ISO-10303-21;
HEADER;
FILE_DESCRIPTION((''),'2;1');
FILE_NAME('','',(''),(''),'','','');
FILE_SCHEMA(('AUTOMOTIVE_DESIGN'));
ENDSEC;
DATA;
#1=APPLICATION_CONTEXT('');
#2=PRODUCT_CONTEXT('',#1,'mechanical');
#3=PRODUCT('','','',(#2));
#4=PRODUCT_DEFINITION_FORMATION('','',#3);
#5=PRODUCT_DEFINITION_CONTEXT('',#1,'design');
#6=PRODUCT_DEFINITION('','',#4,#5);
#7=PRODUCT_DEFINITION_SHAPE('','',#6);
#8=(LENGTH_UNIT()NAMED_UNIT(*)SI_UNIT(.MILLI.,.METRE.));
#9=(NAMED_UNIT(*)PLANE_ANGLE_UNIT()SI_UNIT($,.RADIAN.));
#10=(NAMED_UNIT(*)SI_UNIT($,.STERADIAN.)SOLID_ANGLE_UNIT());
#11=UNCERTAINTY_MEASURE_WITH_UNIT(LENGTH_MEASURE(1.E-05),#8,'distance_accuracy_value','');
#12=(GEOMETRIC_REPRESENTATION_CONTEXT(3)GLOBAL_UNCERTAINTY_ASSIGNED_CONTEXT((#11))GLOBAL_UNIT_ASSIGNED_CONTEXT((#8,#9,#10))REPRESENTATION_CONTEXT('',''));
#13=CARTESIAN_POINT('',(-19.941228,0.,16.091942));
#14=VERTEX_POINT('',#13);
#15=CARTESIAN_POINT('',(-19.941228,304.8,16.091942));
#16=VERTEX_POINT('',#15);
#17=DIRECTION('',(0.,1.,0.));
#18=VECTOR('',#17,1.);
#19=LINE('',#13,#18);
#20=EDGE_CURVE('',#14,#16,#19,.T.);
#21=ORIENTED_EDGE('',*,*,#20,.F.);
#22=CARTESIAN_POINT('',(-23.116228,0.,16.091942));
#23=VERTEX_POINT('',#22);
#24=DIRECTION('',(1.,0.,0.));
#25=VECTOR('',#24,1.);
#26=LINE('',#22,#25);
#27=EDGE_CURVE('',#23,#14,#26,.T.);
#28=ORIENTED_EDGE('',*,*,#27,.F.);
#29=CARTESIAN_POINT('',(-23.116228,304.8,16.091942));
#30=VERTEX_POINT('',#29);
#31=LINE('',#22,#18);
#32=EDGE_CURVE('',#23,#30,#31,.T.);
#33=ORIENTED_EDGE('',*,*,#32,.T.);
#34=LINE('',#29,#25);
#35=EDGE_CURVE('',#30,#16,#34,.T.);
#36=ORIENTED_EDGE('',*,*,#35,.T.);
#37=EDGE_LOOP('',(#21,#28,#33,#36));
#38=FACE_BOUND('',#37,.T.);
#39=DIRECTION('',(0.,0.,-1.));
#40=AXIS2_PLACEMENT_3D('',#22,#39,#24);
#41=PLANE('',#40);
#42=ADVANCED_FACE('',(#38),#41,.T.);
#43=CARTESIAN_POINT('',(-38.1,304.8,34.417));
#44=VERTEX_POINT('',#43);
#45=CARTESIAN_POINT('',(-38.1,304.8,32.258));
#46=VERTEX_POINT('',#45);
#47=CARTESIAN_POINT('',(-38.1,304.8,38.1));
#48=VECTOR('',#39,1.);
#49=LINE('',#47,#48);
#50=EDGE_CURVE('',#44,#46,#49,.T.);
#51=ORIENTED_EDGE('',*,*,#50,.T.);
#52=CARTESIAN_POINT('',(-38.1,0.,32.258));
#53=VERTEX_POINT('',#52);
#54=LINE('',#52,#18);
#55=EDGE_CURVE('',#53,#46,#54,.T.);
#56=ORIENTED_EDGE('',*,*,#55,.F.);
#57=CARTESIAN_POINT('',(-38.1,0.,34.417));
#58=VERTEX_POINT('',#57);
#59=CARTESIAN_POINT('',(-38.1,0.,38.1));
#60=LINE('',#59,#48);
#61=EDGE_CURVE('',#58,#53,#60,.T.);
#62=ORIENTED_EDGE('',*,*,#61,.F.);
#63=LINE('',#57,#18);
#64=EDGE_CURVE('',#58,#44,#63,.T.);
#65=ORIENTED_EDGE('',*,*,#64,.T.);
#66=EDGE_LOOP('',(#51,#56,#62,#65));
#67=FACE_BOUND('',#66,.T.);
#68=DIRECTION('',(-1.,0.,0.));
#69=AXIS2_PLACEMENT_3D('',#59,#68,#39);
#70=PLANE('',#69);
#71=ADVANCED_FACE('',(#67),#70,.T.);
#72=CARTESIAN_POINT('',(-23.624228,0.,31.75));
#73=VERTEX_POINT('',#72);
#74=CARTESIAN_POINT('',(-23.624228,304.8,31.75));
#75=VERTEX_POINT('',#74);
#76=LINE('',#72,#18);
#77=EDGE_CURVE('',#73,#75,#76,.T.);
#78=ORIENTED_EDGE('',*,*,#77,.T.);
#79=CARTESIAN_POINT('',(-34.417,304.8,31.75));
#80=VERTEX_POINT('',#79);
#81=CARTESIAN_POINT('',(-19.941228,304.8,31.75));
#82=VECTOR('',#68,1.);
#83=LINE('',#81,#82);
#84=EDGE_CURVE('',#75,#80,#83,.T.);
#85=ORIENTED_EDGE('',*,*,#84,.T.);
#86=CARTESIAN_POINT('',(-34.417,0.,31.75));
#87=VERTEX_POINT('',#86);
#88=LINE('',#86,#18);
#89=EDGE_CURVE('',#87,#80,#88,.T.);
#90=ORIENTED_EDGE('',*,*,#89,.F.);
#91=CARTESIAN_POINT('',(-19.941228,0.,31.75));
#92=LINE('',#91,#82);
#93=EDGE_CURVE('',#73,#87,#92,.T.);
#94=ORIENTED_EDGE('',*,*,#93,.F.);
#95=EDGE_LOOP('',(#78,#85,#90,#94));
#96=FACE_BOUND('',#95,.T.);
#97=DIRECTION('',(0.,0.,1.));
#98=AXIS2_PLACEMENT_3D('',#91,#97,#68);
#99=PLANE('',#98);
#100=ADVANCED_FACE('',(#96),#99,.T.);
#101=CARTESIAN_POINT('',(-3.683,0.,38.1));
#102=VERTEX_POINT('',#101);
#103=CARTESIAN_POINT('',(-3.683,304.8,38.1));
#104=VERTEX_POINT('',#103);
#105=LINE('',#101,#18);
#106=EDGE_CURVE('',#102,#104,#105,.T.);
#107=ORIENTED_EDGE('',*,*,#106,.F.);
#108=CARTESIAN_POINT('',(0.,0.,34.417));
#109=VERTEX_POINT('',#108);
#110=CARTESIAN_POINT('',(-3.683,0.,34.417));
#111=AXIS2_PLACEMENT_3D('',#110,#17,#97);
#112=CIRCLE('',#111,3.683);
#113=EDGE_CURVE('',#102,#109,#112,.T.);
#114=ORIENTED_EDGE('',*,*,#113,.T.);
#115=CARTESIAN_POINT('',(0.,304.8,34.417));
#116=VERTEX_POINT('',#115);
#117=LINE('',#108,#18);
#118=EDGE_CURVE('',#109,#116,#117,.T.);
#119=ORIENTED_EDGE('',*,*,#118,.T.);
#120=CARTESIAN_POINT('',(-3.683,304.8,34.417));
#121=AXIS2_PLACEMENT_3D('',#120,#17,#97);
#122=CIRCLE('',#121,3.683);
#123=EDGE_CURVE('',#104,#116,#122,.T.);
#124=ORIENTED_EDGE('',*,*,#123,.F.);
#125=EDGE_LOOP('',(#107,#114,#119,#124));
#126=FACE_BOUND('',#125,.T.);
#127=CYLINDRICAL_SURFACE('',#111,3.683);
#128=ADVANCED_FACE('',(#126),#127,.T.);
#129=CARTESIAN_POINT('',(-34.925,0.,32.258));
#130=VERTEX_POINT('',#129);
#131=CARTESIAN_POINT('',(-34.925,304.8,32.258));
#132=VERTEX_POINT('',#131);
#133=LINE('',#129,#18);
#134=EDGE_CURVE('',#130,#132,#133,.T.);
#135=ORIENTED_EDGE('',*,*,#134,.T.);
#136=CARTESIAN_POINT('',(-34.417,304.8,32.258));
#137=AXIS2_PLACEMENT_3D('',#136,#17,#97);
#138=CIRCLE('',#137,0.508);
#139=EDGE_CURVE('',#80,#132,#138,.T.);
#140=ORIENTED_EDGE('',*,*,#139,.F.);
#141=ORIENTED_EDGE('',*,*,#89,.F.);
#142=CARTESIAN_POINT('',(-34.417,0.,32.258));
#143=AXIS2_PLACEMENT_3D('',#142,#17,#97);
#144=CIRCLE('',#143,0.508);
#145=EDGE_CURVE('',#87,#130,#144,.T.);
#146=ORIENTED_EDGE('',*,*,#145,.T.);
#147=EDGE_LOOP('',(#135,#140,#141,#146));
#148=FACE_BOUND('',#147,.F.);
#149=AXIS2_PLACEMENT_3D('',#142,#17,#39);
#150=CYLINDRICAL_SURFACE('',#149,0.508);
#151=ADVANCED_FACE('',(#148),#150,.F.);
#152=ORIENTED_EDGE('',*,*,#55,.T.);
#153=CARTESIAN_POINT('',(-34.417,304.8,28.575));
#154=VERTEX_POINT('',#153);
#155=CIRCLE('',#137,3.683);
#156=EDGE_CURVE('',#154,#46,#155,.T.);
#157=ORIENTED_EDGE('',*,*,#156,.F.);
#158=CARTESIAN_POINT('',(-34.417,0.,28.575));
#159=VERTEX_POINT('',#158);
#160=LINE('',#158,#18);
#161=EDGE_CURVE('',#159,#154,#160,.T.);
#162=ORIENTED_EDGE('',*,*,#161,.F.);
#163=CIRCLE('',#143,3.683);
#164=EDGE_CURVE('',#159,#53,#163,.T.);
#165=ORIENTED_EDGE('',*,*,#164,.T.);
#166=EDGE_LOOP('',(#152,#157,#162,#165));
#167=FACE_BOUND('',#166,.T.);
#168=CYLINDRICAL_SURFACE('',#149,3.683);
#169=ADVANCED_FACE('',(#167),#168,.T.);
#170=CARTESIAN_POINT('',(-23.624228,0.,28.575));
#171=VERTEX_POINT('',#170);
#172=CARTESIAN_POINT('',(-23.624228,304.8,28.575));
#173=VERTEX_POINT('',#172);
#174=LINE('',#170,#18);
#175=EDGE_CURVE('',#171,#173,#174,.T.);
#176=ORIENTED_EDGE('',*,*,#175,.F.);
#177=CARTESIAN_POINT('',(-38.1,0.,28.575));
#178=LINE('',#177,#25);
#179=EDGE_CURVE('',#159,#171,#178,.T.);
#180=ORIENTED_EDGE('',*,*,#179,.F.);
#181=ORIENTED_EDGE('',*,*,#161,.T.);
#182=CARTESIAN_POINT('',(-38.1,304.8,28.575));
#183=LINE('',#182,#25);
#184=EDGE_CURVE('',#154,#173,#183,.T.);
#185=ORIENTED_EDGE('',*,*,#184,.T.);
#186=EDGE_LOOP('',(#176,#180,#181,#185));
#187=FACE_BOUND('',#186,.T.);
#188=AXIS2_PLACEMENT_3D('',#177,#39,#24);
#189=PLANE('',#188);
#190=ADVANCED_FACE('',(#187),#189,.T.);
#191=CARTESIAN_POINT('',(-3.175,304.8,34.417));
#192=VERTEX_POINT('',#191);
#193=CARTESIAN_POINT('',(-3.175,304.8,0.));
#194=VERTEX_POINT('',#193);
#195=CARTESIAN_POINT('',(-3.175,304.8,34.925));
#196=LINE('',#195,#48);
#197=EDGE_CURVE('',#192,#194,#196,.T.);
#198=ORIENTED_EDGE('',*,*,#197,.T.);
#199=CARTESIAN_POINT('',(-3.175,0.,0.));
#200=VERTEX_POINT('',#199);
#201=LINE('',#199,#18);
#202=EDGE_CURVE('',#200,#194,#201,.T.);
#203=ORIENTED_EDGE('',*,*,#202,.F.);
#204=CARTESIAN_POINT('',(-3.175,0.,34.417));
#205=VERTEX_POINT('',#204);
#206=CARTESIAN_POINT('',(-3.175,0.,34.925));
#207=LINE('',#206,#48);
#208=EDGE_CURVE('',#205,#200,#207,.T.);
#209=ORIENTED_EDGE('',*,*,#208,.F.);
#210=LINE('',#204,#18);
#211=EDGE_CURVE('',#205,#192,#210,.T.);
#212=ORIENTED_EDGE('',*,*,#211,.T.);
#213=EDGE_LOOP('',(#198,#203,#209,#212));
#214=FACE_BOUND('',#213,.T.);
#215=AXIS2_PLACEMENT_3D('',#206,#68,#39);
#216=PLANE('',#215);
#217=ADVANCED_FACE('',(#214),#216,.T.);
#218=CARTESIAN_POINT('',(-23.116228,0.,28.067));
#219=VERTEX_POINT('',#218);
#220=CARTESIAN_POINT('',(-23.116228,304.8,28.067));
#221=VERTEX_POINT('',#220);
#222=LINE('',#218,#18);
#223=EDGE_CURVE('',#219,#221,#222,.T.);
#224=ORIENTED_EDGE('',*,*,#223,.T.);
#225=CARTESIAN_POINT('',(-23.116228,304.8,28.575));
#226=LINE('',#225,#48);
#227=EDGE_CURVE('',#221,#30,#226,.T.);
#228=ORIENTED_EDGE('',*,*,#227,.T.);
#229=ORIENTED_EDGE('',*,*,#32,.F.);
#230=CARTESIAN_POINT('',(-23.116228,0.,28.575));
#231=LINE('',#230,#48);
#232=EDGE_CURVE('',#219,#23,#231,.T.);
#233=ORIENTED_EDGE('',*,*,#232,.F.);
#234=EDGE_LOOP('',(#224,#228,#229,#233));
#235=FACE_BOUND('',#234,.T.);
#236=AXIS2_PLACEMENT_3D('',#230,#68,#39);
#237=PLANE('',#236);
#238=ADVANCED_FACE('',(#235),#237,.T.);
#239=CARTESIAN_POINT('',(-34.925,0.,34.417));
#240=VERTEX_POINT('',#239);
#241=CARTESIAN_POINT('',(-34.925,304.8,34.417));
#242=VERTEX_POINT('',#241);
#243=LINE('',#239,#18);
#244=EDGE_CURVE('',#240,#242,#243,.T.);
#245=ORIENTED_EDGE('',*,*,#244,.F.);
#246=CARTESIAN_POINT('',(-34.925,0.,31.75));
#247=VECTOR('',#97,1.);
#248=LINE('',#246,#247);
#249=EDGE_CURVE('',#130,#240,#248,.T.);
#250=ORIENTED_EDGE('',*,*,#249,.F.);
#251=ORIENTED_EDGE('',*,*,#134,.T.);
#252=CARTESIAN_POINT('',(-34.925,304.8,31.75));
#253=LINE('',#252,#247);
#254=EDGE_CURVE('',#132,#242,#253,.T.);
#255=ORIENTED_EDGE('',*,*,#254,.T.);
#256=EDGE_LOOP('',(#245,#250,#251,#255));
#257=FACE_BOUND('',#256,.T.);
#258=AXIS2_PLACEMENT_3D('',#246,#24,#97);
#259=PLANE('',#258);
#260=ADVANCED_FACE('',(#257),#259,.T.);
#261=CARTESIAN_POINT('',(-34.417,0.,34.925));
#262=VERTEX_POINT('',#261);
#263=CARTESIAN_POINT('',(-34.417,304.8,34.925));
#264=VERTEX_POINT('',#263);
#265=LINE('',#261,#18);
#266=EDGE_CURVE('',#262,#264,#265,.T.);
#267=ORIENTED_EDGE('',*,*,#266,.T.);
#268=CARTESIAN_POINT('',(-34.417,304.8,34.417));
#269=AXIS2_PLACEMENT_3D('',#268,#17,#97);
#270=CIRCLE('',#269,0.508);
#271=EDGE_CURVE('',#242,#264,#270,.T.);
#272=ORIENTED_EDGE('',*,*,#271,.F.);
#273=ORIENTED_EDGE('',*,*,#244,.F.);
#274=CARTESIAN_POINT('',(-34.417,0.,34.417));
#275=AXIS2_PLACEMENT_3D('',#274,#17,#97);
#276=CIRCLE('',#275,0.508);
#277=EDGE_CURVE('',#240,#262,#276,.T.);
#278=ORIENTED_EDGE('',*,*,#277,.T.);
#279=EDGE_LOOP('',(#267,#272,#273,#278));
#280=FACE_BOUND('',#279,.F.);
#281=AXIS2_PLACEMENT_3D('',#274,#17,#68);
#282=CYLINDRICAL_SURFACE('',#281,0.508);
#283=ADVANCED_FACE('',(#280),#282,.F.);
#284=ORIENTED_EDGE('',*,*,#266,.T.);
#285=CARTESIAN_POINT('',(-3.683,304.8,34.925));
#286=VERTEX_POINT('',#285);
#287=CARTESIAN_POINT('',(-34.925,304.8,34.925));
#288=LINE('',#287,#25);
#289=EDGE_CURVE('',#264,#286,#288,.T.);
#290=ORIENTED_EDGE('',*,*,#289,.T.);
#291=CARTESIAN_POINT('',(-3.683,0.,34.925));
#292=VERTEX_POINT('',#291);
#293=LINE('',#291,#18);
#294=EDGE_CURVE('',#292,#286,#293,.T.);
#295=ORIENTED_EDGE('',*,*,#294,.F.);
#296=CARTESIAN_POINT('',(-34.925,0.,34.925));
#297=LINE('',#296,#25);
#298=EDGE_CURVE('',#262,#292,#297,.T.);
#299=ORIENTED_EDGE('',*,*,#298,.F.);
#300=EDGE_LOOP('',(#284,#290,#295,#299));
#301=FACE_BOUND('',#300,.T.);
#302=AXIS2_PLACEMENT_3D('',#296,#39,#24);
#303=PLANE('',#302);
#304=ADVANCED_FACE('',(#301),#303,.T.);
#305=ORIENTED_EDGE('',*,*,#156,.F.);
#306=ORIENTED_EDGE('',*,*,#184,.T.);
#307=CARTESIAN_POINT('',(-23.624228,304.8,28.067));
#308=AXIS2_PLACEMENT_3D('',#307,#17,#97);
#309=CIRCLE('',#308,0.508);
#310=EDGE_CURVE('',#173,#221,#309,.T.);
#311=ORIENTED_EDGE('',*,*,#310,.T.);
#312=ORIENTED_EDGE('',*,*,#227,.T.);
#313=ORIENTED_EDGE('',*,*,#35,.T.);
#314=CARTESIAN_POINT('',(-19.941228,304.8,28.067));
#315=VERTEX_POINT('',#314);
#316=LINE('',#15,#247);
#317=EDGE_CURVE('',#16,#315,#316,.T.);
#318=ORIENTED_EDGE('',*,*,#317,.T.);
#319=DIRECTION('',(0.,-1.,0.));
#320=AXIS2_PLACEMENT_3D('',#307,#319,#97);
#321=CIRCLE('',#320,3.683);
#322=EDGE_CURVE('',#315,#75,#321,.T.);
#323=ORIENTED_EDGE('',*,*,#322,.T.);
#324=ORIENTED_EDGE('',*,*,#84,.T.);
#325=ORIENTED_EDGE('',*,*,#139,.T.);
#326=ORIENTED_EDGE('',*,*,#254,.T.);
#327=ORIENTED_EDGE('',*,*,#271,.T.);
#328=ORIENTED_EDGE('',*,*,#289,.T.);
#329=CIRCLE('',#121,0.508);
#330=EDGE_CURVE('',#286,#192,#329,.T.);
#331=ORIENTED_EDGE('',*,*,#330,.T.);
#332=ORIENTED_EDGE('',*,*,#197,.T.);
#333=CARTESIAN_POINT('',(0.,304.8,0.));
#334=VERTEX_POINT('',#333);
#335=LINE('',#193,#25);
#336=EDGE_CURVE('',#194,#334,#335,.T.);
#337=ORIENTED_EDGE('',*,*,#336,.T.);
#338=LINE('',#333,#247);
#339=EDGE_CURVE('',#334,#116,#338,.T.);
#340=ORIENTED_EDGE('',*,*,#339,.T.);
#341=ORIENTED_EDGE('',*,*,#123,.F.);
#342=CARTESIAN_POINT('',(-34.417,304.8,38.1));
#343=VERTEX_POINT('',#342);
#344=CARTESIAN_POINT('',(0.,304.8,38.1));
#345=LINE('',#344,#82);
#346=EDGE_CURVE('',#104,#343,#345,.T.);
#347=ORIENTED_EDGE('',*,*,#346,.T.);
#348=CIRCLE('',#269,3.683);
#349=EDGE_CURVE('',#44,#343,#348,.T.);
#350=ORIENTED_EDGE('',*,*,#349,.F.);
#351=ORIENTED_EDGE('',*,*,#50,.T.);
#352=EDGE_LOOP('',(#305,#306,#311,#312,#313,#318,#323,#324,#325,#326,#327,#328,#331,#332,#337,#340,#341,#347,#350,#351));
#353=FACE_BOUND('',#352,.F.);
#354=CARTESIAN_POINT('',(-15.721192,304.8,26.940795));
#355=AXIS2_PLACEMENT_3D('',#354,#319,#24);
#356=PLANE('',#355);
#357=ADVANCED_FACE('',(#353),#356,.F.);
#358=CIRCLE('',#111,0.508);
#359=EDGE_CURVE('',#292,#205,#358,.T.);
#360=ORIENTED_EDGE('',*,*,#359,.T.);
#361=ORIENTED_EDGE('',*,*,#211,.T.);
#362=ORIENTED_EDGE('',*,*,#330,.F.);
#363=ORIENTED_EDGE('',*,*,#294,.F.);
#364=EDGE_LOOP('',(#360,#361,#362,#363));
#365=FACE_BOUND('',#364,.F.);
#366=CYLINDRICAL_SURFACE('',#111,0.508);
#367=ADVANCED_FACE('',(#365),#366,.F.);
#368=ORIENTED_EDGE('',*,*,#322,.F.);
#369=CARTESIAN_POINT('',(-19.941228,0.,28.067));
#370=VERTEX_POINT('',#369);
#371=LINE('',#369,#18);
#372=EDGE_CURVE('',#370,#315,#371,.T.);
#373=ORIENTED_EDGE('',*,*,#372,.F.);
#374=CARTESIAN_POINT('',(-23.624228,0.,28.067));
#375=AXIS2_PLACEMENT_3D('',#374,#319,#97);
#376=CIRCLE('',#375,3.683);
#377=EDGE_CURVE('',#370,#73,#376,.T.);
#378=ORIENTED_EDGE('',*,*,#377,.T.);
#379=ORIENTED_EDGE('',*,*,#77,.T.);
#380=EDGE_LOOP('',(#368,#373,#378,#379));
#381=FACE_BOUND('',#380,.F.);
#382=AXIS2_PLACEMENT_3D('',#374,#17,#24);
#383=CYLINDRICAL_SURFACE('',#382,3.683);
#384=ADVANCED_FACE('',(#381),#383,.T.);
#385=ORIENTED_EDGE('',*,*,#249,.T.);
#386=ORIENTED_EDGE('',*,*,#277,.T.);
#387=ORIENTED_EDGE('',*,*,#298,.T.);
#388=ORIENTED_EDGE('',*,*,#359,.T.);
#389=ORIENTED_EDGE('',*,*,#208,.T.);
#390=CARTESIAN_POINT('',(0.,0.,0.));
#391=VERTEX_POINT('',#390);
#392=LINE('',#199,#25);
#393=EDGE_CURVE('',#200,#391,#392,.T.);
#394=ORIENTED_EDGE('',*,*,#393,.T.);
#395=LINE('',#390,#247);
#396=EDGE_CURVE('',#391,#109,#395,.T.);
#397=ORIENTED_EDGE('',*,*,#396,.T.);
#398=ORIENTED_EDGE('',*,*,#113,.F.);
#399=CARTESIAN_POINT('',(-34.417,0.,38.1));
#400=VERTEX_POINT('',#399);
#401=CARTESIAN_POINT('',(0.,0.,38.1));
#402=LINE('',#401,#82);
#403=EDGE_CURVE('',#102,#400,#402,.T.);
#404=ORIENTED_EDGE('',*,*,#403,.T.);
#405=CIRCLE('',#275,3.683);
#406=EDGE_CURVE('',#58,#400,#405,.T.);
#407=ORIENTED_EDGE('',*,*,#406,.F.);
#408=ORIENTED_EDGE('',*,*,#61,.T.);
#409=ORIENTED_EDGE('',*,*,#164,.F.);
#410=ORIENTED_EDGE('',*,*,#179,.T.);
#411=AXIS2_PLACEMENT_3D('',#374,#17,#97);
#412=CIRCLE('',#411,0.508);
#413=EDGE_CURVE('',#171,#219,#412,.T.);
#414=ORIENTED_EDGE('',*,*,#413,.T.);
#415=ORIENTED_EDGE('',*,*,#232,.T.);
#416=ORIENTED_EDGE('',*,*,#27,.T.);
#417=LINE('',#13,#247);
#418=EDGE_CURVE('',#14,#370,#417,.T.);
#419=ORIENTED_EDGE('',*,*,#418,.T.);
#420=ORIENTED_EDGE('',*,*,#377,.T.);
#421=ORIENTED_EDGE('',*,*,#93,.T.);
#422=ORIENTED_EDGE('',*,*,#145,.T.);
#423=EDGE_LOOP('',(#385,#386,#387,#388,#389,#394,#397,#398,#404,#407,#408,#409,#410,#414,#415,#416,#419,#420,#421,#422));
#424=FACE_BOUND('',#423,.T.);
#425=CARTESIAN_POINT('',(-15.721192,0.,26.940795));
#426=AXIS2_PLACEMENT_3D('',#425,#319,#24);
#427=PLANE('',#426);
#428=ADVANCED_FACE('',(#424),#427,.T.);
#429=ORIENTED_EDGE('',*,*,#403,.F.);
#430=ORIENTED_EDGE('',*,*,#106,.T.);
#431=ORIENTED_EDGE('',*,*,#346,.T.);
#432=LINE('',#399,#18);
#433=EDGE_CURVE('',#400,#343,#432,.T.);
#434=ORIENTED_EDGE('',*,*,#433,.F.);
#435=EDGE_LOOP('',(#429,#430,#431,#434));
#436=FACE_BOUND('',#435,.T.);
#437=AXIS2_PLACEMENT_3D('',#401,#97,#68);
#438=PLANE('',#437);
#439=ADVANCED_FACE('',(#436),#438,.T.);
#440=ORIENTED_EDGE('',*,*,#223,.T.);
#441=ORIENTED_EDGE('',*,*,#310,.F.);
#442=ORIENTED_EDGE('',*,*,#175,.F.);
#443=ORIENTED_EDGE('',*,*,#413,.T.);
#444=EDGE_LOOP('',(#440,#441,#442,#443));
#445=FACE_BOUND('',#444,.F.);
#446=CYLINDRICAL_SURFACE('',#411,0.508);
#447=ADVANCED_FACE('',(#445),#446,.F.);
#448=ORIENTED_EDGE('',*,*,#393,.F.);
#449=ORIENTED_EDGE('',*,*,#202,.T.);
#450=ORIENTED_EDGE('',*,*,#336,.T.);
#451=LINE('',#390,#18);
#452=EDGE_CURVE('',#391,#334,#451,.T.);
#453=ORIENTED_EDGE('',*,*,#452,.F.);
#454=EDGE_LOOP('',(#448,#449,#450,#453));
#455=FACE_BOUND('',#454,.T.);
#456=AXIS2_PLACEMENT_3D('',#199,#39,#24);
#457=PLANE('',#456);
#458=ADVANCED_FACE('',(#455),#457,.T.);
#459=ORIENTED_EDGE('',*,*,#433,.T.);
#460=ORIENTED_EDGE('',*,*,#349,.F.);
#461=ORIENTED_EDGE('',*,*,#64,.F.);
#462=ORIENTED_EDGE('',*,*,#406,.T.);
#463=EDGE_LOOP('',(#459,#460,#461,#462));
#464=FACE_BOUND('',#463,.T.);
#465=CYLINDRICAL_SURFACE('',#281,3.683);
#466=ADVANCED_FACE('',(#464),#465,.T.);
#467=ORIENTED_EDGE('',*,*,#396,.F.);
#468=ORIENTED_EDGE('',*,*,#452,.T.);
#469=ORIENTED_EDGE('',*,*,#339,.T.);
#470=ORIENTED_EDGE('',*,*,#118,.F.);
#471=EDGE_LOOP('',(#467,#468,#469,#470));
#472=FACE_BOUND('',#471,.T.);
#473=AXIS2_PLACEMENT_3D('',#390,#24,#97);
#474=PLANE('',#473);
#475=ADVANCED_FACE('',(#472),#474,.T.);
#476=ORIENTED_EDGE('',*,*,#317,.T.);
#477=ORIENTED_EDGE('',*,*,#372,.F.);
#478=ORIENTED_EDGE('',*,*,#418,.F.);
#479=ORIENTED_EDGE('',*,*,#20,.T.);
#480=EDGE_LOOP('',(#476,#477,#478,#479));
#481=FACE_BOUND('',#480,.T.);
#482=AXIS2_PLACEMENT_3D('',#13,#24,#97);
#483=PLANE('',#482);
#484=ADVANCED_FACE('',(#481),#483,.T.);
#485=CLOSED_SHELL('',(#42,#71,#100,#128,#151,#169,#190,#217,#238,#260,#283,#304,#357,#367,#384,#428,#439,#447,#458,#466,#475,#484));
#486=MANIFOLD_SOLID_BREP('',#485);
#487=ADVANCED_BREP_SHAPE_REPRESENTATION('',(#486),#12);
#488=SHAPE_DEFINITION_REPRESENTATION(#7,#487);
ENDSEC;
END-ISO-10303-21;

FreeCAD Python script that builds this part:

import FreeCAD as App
import Part
import Sketcher
Q = App.Units.Quantity


def edges_at(feature, points):
    """Names of the edges that pass closest to the given points."""
    edges = feature.Shape.Edges
    near = lambda p: min(range(len(edges)), key=lambda i: edges[i].distToShape(Part.Vertex(*p))[0])
    return sorted({f"Edge{near(p) + 1}" for p in points})


def add_polygon(sketch, points):
    """Adds a closed chain of lines whose ends are joined by coincident constraints."""
    first, n = sketch.GeometryCount, len(points)
    for a, b in zip(points, points[1:] + points[:1]):
        sketch.addGeometry(Part.LineSegment(App.Vector(*a, 0), App.Vector(*b, 0)), False)
    for i in range(n):
        sketch.addConstraint(Sketcher.Constraint("Coincident", first + i, 2, first + (i + 1) % n, 1))

doc = App.newDocument("Part")
body = doc.addObject("PartDesign::Body", "Body")

# Sketch on XZ plane
sketch1 = doc.addObject("Sketcher::SketchObject", "Sketch")
body.addObject(sketch1)
sketch1.AttachmentSupport = (doc.XZ_Plane, [""])
sketch1.MapMode = "FlatFace"
add_polygon(sketch1, [(-3.2, 0), (0, 0), (0, 38.1), (-38.1, 38.1), (-38.1, 28.6), (-23.1, 28.6), (-23.1, 16.1), (-19.9, 16.1), (-19.9, 31.8), (-34.9, 31.8), (-34.9, 34.9), (-3.2, 34.9)])  # lines 0-11
sketch1.addConstraint(Sketcher.Constraint("Horizontal", 0))
sketch1.addConstraint(Sketcher.Constraint("Vertical", 1))
sketch1.addConstraint(Sketcher.Constraint("Horizontal", 2))
sketch1.addConstraint(Sketcher.Constraint("Vertical", 3))
sketch1.addConstraint(Sketcher.Constraint("Horizontal", 4))
sketch1.addConstraint(Sketcher.Constraint("Vertical", 5))
sketch1.addConstraint(Sketcher.Constraint("Horizontal", 6))
sketch1.addConstraint(Sketcher.Constraint("Vertical", 7))
sketch1.addConstraint(Sketcher.Constraint("Horizontal", 8))
sketch1.addConstraint(Sketcher.Constraint("Vertical", 9))
sketch1.addConstraint(Sketcher.Constraint("Horizontal", 10))
sketch1.addConstraint(Sketcher.Constraint("Vertical", 11))
sketch1.addConstraint(Sketcher.Constraint("Coincident", 0, 2, -1, 1))
sketch1.addConstraint(Sketcher.Constraint("Equal", 0, 6))
sketch1.addConstraint(Sketcher.Constraint("Equal", 4, 8))
sketch1.addConstraint(Sketcher.Constraint("Equal", 2, 1))
sketch1.addConstraint(Sketcher.Constraint("Equal", 6, 9))
sketch1.addConstraint(Sketcher.Constraint("DistanceX", 2, 2, 2, 1, Q("1.5 in")))
sketch1.addConstraint(Sketcher.Constraint("DistanceX", 10, 1, 10, 2, Q("1.25 in")))
sketch1.addConstraint(Sketcher.Constraint("DistanceY", 3, 2, 3, 1, Q("0.375 in")))
sketch1.addConstraint(Sketcher.Constraint("DistanceY", 11, 2, 11, 1, Q("1.375 in")))
sketch1.addConstraint(Sketcher.Constraint("DistanceX", 8, 2, 8, 1, Q("14.983772 mm")))
sketch1.addConstraint(Sketcher.Constraint("DistanceY", 5, 2, 5, 1, Q("12.483058 mm")))
pad1 = doc.addObject("PartDesign::Pad", "Pad")
body.addObject(pad1)
pad1.Profile = sketch1
pad1.Length = Q("12 in")
pad1.Reversed = True
doc.recompute()

fillet = doc.addObject("PartDesign::Fillet", "Fillet")
body.addObject(fillet)
fillet.Base = (pad1, edges_at(pad1, [
    (-34.925, 152.4, 31.75),
    (-34.925, 152.4, 34.925),
    (-3.175, 152.4, 34.925),
    (-23.116, 152.4, 28.575),
]))
fillet.Radius = Q("0.02 in")
doc.recompute()

fillet2 = doc.addObject("PartDesign::Fillet", "Fillet001")
body.addObject(fillet2)
fillet2.Base = (fillet, edges_at(fillet, [
    (-38.1, 152.4, 38.1),
    (0, 152.4, 38.1),
    (-19.941, 152.4, 31.75),
    (-38.1, 152.4, 28.575),
]))
fillet2.Radius = Q("0.145 in")

doc.recompute()
